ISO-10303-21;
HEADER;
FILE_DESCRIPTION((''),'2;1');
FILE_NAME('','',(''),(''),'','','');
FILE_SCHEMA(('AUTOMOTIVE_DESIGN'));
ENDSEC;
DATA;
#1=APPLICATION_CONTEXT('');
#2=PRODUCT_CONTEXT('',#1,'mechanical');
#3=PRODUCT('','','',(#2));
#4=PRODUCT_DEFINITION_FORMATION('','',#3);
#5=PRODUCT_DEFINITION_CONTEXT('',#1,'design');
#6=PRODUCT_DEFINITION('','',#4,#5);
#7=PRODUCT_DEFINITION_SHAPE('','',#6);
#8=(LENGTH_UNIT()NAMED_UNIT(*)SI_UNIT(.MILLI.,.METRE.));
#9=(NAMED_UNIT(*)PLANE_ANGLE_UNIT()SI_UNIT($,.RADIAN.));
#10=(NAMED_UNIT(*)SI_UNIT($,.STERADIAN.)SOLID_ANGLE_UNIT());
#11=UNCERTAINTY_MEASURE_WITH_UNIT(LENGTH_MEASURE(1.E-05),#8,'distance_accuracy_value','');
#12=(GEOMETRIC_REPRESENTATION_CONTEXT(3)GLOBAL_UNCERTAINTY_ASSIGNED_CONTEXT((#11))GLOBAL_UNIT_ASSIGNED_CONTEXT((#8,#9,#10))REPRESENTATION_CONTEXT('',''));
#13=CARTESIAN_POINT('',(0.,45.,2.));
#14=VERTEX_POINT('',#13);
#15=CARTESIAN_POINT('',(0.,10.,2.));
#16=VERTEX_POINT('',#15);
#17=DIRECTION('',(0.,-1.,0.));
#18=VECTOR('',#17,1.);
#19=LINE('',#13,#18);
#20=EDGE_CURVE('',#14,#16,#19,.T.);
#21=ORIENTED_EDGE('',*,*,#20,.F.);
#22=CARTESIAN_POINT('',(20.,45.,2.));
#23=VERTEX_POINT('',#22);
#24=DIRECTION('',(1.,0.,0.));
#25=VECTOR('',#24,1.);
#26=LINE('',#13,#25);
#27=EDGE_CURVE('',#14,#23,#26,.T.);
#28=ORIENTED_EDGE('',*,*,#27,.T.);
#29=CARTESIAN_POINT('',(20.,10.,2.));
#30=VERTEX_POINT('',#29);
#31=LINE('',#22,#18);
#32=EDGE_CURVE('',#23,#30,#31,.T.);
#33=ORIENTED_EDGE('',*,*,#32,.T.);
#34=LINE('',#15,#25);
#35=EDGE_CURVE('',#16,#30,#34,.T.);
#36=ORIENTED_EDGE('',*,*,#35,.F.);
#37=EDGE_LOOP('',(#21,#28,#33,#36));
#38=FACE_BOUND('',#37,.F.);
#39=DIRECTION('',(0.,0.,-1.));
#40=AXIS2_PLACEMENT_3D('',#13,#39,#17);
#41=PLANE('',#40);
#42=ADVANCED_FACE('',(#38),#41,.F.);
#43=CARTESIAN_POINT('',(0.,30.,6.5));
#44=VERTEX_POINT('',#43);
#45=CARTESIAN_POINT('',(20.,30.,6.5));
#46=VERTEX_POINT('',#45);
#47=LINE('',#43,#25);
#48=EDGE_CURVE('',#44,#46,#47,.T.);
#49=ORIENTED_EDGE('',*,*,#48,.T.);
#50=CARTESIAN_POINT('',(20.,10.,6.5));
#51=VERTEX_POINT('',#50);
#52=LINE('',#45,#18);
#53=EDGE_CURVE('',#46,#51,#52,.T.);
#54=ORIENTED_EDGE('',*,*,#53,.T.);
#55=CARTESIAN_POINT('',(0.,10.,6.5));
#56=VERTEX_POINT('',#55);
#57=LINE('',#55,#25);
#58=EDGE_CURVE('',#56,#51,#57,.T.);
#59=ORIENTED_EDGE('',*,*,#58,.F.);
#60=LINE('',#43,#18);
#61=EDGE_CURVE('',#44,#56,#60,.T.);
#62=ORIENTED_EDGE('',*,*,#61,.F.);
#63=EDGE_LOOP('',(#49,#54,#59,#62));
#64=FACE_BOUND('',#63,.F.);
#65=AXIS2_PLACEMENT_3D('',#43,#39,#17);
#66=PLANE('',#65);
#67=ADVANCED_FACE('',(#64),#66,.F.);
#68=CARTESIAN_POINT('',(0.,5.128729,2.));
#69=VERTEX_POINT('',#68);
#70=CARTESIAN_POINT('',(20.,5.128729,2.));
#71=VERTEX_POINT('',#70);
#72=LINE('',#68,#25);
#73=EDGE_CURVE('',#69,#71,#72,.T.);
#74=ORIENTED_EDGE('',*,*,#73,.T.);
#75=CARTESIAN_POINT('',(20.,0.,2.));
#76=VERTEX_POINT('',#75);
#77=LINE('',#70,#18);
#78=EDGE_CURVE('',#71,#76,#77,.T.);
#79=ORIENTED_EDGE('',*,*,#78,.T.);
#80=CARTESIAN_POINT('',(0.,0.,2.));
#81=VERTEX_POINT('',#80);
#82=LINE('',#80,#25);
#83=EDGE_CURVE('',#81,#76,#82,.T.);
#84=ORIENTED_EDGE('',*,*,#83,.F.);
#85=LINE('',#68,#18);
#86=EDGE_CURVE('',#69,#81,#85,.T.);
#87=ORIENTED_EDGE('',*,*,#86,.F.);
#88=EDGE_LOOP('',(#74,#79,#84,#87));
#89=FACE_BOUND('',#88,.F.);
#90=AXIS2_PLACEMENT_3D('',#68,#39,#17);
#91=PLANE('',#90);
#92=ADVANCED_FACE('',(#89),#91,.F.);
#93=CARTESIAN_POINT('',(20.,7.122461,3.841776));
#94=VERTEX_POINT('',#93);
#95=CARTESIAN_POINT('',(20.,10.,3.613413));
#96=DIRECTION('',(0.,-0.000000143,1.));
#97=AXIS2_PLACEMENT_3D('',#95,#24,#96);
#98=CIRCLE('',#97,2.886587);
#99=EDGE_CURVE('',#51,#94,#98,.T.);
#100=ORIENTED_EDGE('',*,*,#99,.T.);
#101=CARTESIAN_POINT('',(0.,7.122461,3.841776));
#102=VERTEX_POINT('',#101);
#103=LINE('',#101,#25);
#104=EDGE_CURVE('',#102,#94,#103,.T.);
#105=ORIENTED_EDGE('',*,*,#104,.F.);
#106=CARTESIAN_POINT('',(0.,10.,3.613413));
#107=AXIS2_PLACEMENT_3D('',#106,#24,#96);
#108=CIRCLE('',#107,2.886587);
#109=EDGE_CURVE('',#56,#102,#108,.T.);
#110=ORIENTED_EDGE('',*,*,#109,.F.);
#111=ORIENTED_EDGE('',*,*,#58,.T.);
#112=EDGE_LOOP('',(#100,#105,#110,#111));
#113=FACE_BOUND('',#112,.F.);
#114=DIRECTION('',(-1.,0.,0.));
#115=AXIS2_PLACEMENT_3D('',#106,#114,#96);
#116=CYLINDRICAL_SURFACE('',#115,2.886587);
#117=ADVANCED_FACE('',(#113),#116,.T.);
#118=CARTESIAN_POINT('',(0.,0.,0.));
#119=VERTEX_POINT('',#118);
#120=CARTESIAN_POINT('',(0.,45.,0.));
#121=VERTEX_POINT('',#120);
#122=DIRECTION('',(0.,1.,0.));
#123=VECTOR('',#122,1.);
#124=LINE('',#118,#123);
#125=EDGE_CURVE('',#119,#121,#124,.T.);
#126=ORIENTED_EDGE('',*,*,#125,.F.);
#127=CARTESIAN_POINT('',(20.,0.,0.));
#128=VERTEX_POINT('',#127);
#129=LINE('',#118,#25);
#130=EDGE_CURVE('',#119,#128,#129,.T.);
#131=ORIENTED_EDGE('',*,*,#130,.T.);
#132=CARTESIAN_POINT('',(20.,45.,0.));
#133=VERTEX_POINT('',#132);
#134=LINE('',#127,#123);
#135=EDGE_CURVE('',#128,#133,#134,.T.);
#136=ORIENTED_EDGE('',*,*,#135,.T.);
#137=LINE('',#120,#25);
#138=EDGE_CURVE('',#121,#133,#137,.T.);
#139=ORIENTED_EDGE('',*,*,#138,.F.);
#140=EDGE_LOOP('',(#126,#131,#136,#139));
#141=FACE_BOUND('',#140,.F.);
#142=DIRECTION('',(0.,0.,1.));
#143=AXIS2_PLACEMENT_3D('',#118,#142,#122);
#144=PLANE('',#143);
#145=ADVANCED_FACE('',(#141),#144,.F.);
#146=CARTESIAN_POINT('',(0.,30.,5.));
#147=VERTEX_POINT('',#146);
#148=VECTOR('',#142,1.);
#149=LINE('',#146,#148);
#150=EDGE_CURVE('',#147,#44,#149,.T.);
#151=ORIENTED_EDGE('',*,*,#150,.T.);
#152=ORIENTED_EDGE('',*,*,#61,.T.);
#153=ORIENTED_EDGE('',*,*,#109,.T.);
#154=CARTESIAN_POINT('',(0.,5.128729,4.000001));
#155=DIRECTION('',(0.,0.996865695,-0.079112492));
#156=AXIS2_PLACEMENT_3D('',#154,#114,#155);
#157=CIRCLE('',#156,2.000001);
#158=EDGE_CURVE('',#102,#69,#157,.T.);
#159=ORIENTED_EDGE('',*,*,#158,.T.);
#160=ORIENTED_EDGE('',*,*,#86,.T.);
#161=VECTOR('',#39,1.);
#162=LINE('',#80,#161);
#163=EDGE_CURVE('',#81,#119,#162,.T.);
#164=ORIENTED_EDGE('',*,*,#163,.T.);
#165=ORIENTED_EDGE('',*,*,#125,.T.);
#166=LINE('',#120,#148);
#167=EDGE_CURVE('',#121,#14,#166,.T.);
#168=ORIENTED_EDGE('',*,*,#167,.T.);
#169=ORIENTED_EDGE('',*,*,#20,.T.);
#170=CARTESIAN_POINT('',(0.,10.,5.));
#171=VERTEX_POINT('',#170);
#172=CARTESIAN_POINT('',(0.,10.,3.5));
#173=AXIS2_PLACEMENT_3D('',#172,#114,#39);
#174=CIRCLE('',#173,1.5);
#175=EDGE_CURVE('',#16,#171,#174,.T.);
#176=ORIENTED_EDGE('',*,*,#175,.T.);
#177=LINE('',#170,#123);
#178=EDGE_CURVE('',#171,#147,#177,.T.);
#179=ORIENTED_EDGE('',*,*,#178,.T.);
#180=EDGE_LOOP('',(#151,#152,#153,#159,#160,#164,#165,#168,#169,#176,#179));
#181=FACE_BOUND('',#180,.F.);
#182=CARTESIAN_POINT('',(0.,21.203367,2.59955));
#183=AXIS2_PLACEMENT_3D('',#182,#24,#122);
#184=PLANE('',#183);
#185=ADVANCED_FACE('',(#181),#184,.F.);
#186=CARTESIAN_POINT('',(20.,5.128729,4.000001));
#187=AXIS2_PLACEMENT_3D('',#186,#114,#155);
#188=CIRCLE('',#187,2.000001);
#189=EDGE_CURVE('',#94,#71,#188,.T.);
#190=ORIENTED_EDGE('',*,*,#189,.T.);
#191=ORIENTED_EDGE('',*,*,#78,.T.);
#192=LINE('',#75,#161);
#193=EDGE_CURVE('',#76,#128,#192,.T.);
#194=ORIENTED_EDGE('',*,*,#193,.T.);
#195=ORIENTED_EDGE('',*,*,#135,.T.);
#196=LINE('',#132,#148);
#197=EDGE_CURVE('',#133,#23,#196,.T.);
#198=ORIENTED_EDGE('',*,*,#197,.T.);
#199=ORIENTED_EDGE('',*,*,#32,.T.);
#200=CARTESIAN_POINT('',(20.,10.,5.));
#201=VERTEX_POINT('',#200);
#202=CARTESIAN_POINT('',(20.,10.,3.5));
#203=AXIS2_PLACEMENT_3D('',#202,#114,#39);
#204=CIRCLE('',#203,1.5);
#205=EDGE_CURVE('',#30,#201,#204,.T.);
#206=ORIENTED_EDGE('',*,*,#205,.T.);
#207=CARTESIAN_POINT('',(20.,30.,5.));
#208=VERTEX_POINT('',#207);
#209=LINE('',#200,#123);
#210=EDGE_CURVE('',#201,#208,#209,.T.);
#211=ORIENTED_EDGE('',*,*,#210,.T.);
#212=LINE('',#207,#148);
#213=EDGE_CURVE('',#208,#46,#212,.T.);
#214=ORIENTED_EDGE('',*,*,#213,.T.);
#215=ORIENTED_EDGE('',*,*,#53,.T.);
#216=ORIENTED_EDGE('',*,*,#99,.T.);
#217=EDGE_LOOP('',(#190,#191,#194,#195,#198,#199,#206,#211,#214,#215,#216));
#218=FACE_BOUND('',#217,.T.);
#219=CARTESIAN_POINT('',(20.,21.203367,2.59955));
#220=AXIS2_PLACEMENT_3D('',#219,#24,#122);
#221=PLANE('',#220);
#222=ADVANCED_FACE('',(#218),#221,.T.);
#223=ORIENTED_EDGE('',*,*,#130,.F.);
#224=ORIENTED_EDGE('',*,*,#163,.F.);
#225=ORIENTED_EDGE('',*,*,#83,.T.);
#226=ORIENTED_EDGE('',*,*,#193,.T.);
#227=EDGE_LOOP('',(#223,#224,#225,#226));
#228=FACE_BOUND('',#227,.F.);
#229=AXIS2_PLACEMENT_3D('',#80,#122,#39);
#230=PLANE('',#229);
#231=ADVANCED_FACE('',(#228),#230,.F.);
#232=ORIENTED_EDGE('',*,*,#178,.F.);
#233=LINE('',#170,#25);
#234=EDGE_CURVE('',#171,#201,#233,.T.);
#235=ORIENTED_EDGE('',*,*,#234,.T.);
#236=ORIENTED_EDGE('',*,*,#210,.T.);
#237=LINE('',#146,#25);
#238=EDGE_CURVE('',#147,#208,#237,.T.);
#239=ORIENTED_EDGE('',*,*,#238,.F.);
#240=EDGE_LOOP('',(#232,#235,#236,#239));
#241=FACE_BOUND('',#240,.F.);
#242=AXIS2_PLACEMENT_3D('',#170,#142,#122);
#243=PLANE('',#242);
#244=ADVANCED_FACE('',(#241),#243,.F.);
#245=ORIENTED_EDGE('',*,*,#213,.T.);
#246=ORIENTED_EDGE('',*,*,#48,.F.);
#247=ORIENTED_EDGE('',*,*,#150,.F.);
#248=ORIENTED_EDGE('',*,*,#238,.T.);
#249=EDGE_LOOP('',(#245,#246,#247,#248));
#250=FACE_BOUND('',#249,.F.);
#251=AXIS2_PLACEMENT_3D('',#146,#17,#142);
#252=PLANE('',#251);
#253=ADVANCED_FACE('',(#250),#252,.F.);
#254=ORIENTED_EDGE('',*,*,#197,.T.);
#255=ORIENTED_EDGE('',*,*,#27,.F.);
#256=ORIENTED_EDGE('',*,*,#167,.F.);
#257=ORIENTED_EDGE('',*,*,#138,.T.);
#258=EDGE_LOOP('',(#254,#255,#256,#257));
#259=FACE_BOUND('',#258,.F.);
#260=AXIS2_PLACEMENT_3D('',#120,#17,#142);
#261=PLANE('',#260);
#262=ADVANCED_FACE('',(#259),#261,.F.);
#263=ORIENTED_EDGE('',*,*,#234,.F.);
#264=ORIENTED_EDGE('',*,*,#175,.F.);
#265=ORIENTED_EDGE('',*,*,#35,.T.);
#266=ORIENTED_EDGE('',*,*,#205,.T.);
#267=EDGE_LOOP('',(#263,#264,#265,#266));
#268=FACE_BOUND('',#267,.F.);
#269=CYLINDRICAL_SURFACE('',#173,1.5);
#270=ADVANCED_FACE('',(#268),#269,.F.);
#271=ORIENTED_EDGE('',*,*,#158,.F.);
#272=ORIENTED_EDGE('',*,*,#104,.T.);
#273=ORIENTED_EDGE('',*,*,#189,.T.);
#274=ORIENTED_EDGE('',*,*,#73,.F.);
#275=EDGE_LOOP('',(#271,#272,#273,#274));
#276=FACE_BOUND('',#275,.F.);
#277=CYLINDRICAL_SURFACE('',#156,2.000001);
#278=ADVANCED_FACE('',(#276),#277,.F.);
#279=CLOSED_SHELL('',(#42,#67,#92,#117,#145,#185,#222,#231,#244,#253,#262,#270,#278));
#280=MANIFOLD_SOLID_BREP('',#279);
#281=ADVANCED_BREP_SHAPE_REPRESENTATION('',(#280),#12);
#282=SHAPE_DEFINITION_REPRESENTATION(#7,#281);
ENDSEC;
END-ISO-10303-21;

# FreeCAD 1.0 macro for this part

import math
import FreeCAD as App
import Part
import Sketcher
from FreeCAD import Vector
Q = App.Units.Quantity

doc = App.newDocument("Part")
body = doc.addObject("PartDesign::Body", "Body")

# Sketch on YZ plane
sketch1 = body.newObject("Sketcher::SketchObject", "Sketch")
sketch1.AttachmentSupport = (doc.getObject("YZ_Plane"), [""])
sketch1.MapMode = "FlatFace"
sketch1.addGeometry([
    Part.LineSegment(Vector(0, 2, 0), Vector(0, 0, 0)),  # 0
    Part.LineSegment(Vector(0, 0, 0), Vector(45, 0, 0)),  # 1
    Part.LineSegment(Vector(45, 0, 0), Vector(45, 2, 0)),  # 2
    Part.LineSegment(Vector(45, 2, 0), Vector(10, 2, 0)),  # 3
    Part.ArcOfCircle(Part.Circle(Vector(10, 3.5, 0), Vector(0, 0, 1), 1.5), math.radians(90), math.radians(270)),  # 4
    Part.LineSegment(Vector(10, 5, 0), Vector(30, 5, 0)),  # 5
    Part.LineSegment(Vector(30, 5, 0), Vector(30, 6.5, 0)),  # 6
    Part.LineSegment(Vector(30, 6.5, 0), Vector(10, 6.5, 0)),  # 7
    Part.ArcOfCircle(Part.Circle(Vector(10, 3.6, 0), Vector(0, 0, 1), 2.9), math.radians(90), math.radians(175)),  # 8
    Part.ArcOfCircle(Part.Circle(Vector(5.1, 4, 0), Vector(0, 0, 1), 2), math.radians(-90), math.radians(-5)),  # 9
    Part.LineSegment(Vector(5.1, 2, 0), Vector(0, 2, 0)),  # 10
], False)
sketch1.addConstraint([
    Sketcher.Constraint("Coincident", 0, 2, 1, 1),
    Sketcher.Constraint("Coincident", 1, 2, 2, 1),
    Sketcher.Constraint("Coincident", 2, 2, 3, 1),
    Sketcher.Constraint("Tangent", 3, 2, 4, 2),
    Sketcher.Constraint("Tangent", 4, 1, 5, 1),
    Sketcher.Constraint("Coincident", 5, 2, 6, 1),
    Sketcher.Constraint("Coincident", 6, 2, 7, 1),
    Sketcher.Constraint("Tangent", 7, 2, 8, 1),
    Sketcher.Constraint("Tangent", 8, 2, 9, 2),
    Sketcher.Constraint("Tangent", 9, 1, 10, 1),
    Sketcher.Constraint("Coincident", 10, 2, 0, 1),
    Sketcher.Constraint("Vertical", 0),
    Sketcher.Constraint("Horizontal", 1),
    Sketcher.Constraint("Vertical", 2),
    Sketcher.Constraint("Horizontal", 3),
    Sketcher.Constraint("Horizontal", 5),
    Sketcher.Constraint("Vertical", 6),
    Sketcher.Constraint("Horizontal", 7),
    Sketcher.Constraint("Horizontal", 10),
    Sketcher.Constraint("Coincident", 0, 2, -1, 1),
    Sketcher.Constraint("Horizontal", 3, 2, 9, 1),
    Sketcher.Constraint("Vertical", 4, 3, 8, 3),
    Sketcher.Constraint("Radius", 9, Q("2.000001 mm")),
    Sketcher.Constraint("Radius", 4, Q("1.5 mm")),
    Sketcher.Constraint("DistanceX", 1, 1, 1, 2, Q("45 mm")),
    Sketcher.Constraint("DistanceX", 3, 2, 3, 1, Q("35 mm")),
    Sketcher.Constraint("DistanceX", 5, 1, 5, 2, Q("20 mm")),
    Sketcher.Constraint("DistanceY", 0, 2, 0, 1, Q("2 mm")),
    Sketcher.Constraint("DistanceY", 6, 1, 6, 2, Q("1.5 mm")),
    Sketcher.Constraint("Radius", 8, Q("2.886587 mm")),
])
pad1 = body.newObject("PartDesign::Pad", "Pad")
pad1.Profile = sketch1
pad1.Length = 20

doc.recompute()
